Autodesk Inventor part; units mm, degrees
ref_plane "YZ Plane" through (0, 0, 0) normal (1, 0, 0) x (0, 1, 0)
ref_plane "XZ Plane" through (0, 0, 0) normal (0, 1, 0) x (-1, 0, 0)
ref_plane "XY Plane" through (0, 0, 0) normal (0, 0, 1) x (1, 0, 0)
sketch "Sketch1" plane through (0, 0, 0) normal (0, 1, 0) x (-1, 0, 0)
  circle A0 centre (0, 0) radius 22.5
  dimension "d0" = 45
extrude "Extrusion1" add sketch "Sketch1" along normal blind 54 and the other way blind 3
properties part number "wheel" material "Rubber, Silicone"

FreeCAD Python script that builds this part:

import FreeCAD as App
import Part
import Sketcher

doc = App.newDocument("Part")
body = doc.addObject("PartDesign::Body", "Body")

# Sketch on XZ plane
sketch1 = body.newObject("Sketcher::SketchObject", "Sketch")
sketch1.AttachmentSupport = (doc.getObject("XZ_Plane"), [""])
sketch1.MapMode = "FlatFace"
sketch1.addGeometry(Part.Circle(App.Vector(0, 0, 0), App.Vector(0, 0, 1), 22.5), False)
sketch1.addConstraint([
    Sketcher.Constraint("Coincident", 0, 3, -1, 1),
    Sketcher.Constraint("Diameter", 0, 45.0),
])
pad1 = body.newObject("PartDesign::Pad", "Pad")
pad1.Profile = sketch1
pad1.Type = "TwoLengths"
pad1.Length = 54
pad1.Length2 = 3
pad1.Reversed = True

doc.recompute()
